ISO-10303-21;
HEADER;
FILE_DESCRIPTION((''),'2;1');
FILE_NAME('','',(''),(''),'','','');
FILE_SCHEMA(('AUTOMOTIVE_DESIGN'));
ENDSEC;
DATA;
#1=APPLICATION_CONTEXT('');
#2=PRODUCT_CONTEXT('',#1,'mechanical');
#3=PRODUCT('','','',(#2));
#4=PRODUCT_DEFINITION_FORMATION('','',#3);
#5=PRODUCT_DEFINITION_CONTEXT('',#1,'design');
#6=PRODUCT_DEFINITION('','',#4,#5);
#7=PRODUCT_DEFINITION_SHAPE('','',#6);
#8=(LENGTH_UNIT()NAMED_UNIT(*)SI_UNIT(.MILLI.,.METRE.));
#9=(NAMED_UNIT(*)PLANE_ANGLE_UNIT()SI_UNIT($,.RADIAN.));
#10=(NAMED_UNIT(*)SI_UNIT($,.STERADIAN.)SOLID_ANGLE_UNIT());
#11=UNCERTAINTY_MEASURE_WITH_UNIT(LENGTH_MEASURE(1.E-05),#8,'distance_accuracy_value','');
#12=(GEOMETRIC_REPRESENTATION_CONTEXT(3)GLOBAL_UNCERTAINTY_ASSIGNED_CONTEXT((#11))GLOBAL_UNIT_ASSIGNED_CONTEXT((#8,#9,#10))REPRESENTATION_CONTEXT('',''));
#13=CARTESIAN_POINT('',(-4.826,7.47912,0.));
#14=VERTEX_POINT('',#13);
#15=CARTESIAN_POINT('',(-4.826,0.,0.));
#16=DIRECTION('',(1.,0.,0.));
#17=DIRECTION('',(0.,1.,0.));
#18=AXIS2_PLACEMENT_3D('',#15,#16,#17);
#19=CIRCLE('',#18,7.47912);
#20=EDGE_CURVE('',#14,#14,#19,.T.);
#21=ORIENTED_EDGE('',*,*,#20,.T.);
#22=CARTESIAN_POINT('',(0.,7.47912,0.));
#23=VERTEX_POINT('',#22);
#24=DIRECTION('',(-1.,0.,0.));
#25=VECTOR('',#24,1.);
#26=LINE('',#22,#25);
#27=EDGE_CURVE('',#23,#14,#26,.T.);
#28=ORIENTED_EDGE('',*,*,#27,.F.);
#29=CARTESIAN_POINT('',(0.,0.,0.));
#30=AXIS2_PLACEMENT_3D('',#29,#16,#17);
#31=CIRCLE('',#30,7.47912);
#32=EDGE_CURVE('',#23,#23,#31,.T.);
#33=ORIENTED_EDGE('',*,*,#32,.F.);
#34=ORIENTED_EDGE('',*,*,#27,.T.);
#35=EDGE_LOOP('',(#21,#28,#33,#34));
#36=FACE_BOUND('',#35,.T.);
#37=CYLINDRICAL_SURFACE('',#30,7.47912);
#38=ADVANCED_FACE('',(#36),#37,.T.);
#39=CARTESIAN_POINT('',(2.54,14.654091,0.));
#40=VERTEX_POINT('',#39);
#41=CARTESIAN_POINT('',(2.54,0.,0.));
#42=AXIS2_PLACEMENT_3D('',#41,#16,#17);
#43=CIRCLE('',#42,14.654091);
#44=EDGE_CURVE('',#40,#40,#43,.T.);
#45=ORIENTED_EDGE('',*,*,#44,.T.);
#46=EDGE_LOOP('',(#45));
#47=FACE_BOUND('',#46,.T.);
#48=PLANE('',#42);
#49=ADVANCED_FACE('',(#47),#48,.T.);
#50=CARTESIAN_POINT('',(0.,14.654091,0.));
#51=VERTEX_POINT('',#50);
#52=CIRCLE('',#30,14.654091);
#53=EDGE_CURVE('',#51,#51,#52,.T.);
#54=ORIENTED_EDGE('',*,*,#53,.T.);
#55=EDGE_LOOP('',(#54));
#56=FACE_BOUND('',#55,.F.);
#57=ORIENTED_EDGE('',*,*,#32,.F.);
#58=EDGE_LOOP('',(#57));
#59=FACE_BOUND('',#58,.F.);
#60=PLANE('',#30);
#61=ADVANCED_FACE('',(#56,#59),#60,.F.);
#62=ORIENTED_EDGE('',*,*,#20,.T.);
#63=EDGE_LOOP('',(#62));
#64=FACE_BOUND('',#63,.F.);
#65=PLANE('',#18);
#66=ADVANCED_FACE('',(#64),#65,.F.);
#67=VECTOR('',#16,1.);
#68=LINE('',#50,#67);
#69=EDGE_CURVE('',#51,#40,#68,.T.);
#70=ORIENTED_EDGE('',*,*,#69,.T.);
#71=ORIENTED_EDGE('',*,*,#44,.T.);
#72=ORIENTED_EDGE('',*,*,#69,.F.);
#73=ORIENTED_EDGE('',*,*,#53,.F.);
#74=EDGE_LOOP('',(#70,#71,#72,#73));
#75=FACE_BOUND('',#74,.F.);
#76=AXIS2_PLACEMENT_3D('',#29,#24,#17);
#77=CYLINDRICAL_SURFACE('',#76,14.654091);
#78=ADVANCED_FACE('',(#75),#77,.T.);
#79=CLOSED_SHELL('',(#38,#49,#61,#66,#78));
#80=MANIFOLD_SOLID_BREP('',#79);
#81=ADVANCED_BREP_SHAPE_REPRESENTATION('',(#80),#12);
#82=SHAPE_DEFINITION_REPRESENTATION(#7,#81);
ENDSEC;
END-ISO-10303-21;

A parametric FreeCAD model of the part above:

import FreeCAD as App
import Part
import Sketcher

doc = App.newDocument("Part")
params = doc.addObject("Spreadsheet::Sheet", "Params")
for row, (alias, value) in enumerate([
    ("pad1_length", "0.1 in"),
    ("pad2_length", "0.19 in"),
], start=1):
    params.set(f"A{row}", alias)
    params.set(f"B{row}", "=" + value)
    params.setAlias(f"B{row}", alias)

body = doc.addObject("PartDesign::Body", "Body")

# Sketch on YZ plane
sketch1 = body.newObject("Sketcher::SketchObject", "Sketch")
sketch1.AttachmentSupport = (doc.getObject("YZ_Plane"), [""])
sketch1.MapMode = "FlatFace"
sketch1.addGeometry(Part.Circle(App.Vector(0, 0, 0), App.Vector(0, 0, 1), 14.654091), False)
sketch1.addConstraint([
    Sketcher.Constraint("Coincident", 0, 3, -1, 1),
    Sketcher.Constraint("Diameter", 0, 29.308182),
])
pad1 = body.newObject("PartDesign::Pad", "Pad")
pad1.Profile = sketch1
pad1.setExpression("Length", "Params.pad1_length")

# Sketch on YZ plane
sketch2 = body.newObject("Sketcher::SketchObject", "Sketch001")
sketch2.AttachmentSupport = (doc.getObject("YZ_Plane"), [""])
sketch2.MapMode = "FlatFace"
sketch2.addGeometry(Part.Circle(App.Vector(0, 0, 0), App.Vector(0, 0, 1), 7.47912), False)
sketch2.addConstraint([
    Sketcher.Constraint("Coincident", 0, 3, -1, 1),
    Sketcher.Constraint("Diameter", 0, 14.95824),
])
pad2 = body.newObject("PartDesign::Pad", "Pad001")
pad2.Profile = sketch2
pad2.setExpression("Length", "Params.pad2_length")
pad2.Reversed = True

doc.recompute()
